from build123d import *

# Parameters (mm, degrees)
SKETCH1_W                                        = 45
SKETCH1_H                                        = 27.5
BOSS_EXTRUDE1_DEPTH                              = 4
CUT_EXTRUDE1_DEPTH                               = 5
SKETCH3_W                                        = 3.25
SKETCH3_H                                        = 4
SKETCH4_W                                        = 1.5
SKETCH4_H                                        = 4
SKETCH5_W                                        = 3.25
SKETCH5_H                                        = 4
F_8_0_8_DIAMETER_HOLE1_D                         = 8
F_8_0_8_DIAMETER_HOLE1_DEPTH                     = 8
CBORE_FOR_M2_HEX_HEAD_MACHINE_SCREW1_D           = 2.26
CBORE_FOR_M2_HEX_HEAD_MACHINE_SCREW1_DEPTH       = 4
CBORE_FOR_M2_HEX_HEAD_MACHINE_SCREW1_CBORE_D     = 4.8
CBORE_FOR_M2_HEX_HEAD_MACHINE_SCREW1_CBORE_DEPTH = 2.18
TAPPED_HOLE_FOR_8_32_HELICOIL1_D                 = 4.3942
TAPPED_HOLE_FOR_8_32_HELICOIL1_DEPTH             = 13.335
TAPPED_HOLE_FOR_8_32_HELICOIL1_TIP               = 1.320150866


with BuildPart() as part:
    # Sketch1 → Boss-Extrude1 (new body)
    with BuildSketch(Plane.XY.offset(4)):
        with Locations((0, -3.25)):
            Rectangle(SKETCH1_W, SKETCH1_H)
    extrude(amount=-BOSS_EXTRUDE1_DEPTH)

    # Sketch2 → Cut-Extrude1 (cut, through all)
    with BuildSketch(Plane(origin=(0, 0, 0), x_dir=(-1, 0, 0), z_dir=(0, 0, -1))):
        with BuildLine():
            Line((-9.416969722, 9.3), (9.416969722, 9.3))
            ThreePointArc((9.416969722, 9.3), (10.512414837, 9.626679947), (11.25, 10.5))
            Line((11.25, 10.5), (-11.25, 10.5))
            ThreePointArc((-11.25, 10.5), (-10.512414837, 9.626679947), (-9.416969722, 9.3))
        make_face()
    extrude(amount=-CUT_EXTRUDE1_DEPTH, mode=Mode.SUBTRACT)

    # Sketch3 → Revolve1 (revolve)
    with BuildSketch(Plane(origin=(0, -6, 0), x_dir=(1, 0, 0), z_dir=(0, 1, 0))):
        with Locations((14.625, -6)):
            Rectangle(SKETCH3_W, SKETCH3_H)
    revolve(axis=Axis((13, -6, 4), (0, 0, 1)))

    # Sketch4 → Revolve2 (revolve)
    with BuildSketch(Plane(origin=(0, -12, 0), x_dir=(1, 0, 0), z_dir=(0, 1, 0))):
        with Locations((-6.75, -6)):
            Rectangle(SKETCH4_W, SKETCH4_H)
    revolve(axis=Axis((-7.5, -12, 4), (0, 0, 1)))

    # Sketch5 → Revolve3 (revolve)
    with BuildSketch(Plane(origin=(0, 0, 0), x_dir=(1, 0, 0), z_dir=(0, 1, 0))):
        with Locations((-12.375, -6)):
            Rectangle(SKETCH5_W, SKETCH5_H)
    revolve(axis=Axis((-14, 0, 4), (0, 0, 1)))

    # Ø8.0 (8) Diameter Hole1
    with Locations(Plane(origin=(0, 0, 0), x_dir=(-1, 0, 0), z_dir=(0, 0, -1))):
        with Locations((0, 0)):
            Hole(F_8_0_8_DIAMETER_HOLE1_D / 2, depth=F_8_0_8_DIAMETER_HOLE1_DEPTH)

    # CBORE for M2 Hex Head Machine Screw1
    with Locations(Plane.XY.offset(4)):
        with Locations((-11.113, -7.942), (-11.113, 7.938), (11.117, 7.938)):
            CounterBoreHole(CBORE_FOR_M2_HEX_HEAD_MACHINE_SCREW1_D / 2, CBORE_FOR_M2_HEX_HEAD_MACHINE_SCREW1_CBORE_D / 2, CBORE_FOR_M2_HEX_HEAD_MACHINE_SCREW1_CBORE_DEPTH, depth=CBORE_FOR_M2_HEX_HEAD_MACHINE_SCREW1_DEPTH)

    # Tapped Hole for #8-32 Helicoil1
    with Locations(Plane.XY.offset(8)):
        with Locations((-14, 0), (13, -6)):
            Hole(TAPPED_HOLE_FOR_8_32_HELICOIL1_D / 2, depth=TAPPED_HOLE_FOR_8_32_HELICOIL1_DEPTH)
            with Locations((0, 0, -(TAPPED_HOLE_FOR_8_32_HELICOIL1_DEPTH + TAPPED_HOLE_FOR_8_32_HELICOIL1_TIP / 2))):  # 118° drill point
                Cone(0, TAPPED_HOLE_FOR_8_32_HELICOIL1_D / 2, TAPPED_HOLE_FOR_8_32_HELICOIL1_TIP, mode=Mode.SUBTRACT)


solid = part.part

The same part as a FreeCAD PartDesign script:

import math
import FreeCAD as App
import Part
import Sketcher

V = App.Vector

doc = App.newDocument("Part")
body = doc.addObject("PartDesign::Body", "Body")

sketch1 = body.newObject("Sketcher::SketchObject", "Sketch")
sketch1.AttachmentSupport = (doc.getObject("XY_Plane"), [""])
sketch1.MapMode = "FlatFace"
sketch1.AttachmentOffset = App.Placement(V(0, 0, 4), App.Rotation())
sketch1.addGeometry(Part.LineSegment(V(-22, 10, 0), V(-22, -17, 0)), False)
sketch1.addGeometry(Part.LineSegment(V(-22, -17, 0), V(22, -17, 0)), False)
sketch1.addGeometry(Part.LineSegment(V(22, -17, 0), V(22, 10, 0)), False)
sketch1.addGeometry(Part.LineSegment(V(22, 10, 0), V(-22, 10, 0)), False)
sketch1.addConstraint(Sketcher.Constraint("Coincident", 0, 2, 1, 1))
sketch1.addConstraint(Sketcher.Constraint("Coincident", 1, 2, 2, 1))
sketch1.addConstraint(Sketcher.Constraint("Coincident", 2, 2, 3, 1))
sketch1.addConstraint(Sketcher.Constraint("Coincident", 3, 2, 0, 1))
sketch1.addConstraint(Sketcher.Constraint("Vertical", 0))
sketch1.addConstraint(Sketcher.Constraint("Horizontal", 1))
sketch1.addConstraint(Sketcher.Constraint("Vertical", 2))
sketch1.addConstraint(Sketcher.Constraint("Horizontal", 3))
sketch1.addConstraint(Sketcher.Constraint("DistanceX", 1, 1, 1, 2, 45.0))
sketch1.addConstraint(Sketcher.Constraint("DistanceY", 0, 2, 0, 1, 27.5))
sketch1.addConstraint(Sketcher.Constraint("DistanceY", 0, 2, -1, 1, 17.0))
sketch1.addConstraint(Sketcher.Constraint("DistanceX", 0, 2, -1, 1, 22.5))
pad1 = body.newObject("PartDesign::Pad", "Pad")
pad1.Profile = sketch1
pad1.Length = 4
pad1.Reversed = True

sketch2 = body.newObject("Sketcher::SketchObject", "Sketch001")
sketch2.AttachmentSupport = (doc.getObject("XY_Plane"), [""])
sketch2.MapMode = "FlatFace"
sketch2.addGeometry(Part.LineSegment(V(9.4, 9.3, 0), V(-9.4, 9.3, 0)), False)
sketch2.addGeometry(Part.ArcOfCircle(Part.Circle(V(-9.4, 11.3, 0), V(0, 0, 1), 2), math.radians(-156), math.radians(-90)), False)
sketch2.addGeometry(Part.LineSegment(V(-11.2, 10.5, 0), V(11.2, 10.5, 0)), False)
sketch2.addGeometry(Part.ArcOfCircle(Part.Circle(V(9.4, 11.3, 0), V(0, 0, 1), 2), math.radians(-90), math.radians(-24)), False)
sketch2.addConstraint(Sketcher.Constraint("Tangent", 0, 2, 1, 2))
sketch2.addConstraint(Sketcher.Constraint("Coincident", 1, 1, 2, 1))
sketch2.addConstraint(Sketcher.Constraint("Coincident", 2, 2, 3, 2))
sketch2.addConstraint(Sketcher.Constraint("Tangent", 3, 1, 0, 1))
sketch2.addConstraint(Sketcher.Constraint("Horizontal", 0))
sketch2.addConstraint(Sketcher.Constraint("Horizontal", 2))
sketch2.addConstraint(Sketcher.Constraint("Equal", 1, 3))
sketch2.addConstraint(Sketcher.Constraint("Radius", 1, 2.0))
sketch2.addConstraint(Sketcher.Constraint("DistanceX", 2, 1, 2, 2, 22.5))
sketch2.addConstraint(Sketcher.Constraint("DistanceY", -1, 1, 1, 3, 11.3))
sketch2.addConstraint(Sketcher.Constraint("DistanceY", -1, 1, 1, 1, 10.5))
sketch2.addConstraint(Sketcher.Constraint("DistanceX", 1, 1, -1, 1, 11.25))
pocket1 = body.newObject("PartDesign::Pocket", "Pocket")
pocket1.Profile = sketch2
pocket1.Type = "ThroughAll"
pocket1.Reversed = True

sketch3 = body.newObject("Sketcher::SketchObject", "Sketch002")
sketch3.AttachmentSupport = (doc.getObject("XZ_Plane"), [""])
sketch3.MapMode = "FlatFace"
sketch3.AttachmentOffset = App.Placement(V(0, 0, 6), App.Rotation())
sketch3.addGeometry(Part.LineSegment(V(13, 4, 0), V(13, 8, 0)), False)
sketch3.addGeometry(Part.LineSegment(V(13, 8, 0), V(16.2, 8, 0)), False)
sketch3.addGeometry(Part.LineSegment(V(16.2, 8, 0), V(16.2, 4, 0)), False)
sketch3.addGeometry(Part.LineSegment(V(16.2, 4, 0), V(13, 4, 0)), False)
sketch3.addGeometry(Part.LineSegment(V(13, 4, 0), V(13, 8, 0)), True)
sketch3.addConstraint(Sketcher.Constraint("Coincident", 0, 2, 1, 1))
sketch3.addConstraint(Sketcher.Constraint("Coincident", 1, 2, 2, 1))
sketch3.addConstraint(Sketcher.Constraint("Coincident", 2, 2, 3, 1))
sketch3.addConstraint(Sketcher.Constraint("Coincident", 3, 2, 0, 1))
sketch3.addConstraint(Sketcher.Constraint("Vertical", 0))
sketch3.addConstraint(Sketcher.Constraint("Horizontal", 1))
sketch3.addConstraint(Sketcher.Constraint("Vertical", 2))
sketch3.addConstraint(Sketcher.Constraint("Horizontal", 3))
sketch3.addConstraint(Sketcher.Constraint("Vertical", 4))
sketch3.addConstraint(Sketcher.Constraint("Coincident", 4, 1, 3, 2))
sketch3.addConstraint(Sketcher.Constraint("Horizontal", 1, 2, 4, 2))
sketch3.addConstraint(Sketcher.Constraint("DistanceY", 0, 1, 0, 2, 4.0))
sketch3.addConstraint(Sketcher.Constraint("DistanceX", -1, 1, 0, 2, 13.0))
sketch3.addConstraint(Sketcher.Constraint("DistanceY", -1, 1, 0, 2, 8.0))
sketch3.addConstraint(Sketcher.Constraint("DistanceX", 1, 1, 1, 2, 3.25))
revolution = body.newObject("PartDesign::Revolution", "Revolution")
revolution.Profile = sketch3
revolution.ReferenceAxis = (sketch3, ["Axis0"])
revolution.Angle = 360

sketch4 = body.newObject("Sketcher::SketchObject", "Sketch003")
sketch4.AttachmentSupport = (doc.getObject("XZ_Plane"), [""])
sketch4.MapMode = "FlatFace"
sketch4.AttachmentOffset = App.Placement(V(0, 0, 12), App.Rotation())
sketch4.addGeometry(Part.LineSegment(V(-7.5, 4, 0), V(-7.5, 8, 0)), False)
sketch4.addGeometry(Part.LineSegment(V(-7.5, 8, 0), V(-6, 8, 0)), False)
sketch4.addGeometry(Part.LineSegment(V(-6, 8, 0), V(-6, 4, 0)), False)
sketch4.addGeometry(Part.LineSegment(V(-6, 4, 0), V(-7.5, 4, 0)), False)
sketch4.addGeometry(Part.LineSegment(V(-7.5, 4, 0), V(-7.5, 8, 0)), True)
sketch4.addConstraint(Sketcher.Constraint("Coincident", 0, 2, 1, 1))
sketch4.addConstraint(Sketcher.Constraint("Coincident", 1, 2, 2, 1))
sketch4.addConstraint(Sketcher.Constraint("Coincident", 2, 2, 3, 1))
sketch4.addConstraint(Sketcher.Constraint("Coincident", 3, 2, 0, 1))
sketch4.addConstraint(Sketcher.Constraint("Vertical", 0))
sketch4.addConstraint(Sketcher.Constraint("Horizontal", 1))
sketch4.addConstraint(Sketcher.Constraint("Vertical", 2))
sketch4.addConstraint(Sketcher.Constraint("Horizontal", 3))
sketch4.addConstraint(Sketcher.Constraint("Vertical", 4))
sketch4.addConstraint(Sketcher.Constraint("Coincident", 4, 1, 3, 2))
sketch4.addConstraint(Sketcher.Constraint("Horizontal", 1, 2, 4, 2))
sketch4.addConstraint(Sketcher.Constraint("DistanceY", 0, 1, 0, 2, 4.0))
sketch4.addConstraint(Sketcher.Constraint("DistanceX", 1, 1, 1, 2, 1.5))
sketch4.addConstraint(Sketcher.Constraint("DistanceY", -1, 1, 0, 2, 8.0))
sketch4.addConstraint(Sketcher.Constraint("DistanceX", 1, 2, -1, 1, 6.0))
revolution2 = body.newObject("PartDesign::Revolution", "Revolution001")
revolution2.Profile = sketch4
revolution2.ReferenceAxis = (sketch4, ["Axis0"])
revolution2.Angle = 360

sketch5 = body.newObject("Sketcher::SketchObject", "Sketch004")
sketch5.AttachmentSupport = (doc.getObject("XZ_Plane"), [""])
sketch5.MapMode = "FlatFace"
sketch5.addGeometry(Part.LineSegment(V(-14, 4, 0), V(-14, 8, 0)), False)
sketch5.addGeometry(Part.LineSegment(V(-14, 8, 0), V(-10.8, 8, 0)), False)
sketch5.addGeometry(Part.LineSegment(V(-10.8, 8, 0), V(-10.8, 4, 0)), False)
sketch5.addGeometry(Part.LineSegment(V(-10.8, 4, 0), V(-14, 4, 0)), False)
sketch5.addGeometry(Part.LineSegment(V(-14, 4, 0), V(-14, 8, 0)), True)
sketch5.addConstraint(Sketcher.Constraint("Coincident", 0, 2, 1, 1))
sketch5.addConstraint(Sketcher.Constraint("Coincident", 1, 2, 2, 1))
sketch5.addConstraint(Sketcher.Constraint("Coincident", 2, 2, 3, 1))
sketch5.addConstraint(Sketcher.Constraint("Coincident", 3, 2, 0, 1))
sketch5.addConstraint(Sketcher.Constraint("Vertical", 0))
sketch5.addConstraint(Sketcher.Constraint("Horizontal", 1))
sketch5.addConstraint(Sketcher.Constraint("Vertical", 2))
sketch5.addConstraint(Sketcher.Constraint("Horizontal", 3))
sketch5.addConstraint(Sketcher.Constraint("Vertical", 4))
sketch5.addConstraint(Sketcher.Constraint("Coincident", 4, 1, 3, 2))
sketch5.addConstraint(Sketcher.Constraint("Horizontal", 1, 2, 4, 2))
sketch5.addConstraint(Sketcher.Constraint("DistanceY", 0, 1, 0, 2, 4.0))
sketch5.addConstraint(Sketcher.Constraint("DistanceX", 0, 2, -1, 1, 14.0))
sketch5.addConstraint(Sketcher.Constraint("DistanceY", -1, 1, 0, 2, 8.0))
sketch5.addConstraint(Sketcher.Constraint("DistanceX", 1, 1, 1, 2, 3.25))
revolution3 = body.newObject("PartDesign::Revolution", "Revolution002")
revolution3.Profile = sketch5
revolution3.ReferenceAxis = (sketch5, ["Axis0"])
revolution3.Angle = 360

sketch6 = body.newObject("Sketcher::SketchObject", "Sketch005")
sketch6.AttachmentSupport = (doc.getObject("XY_Plane"), [""])
sketch6.MapMode = "FlatFace"
sketch6.addGeometry(Part.Circle(V(0, 0, 0), V(0, 0, 1), 4), False)
sketch6.addConstraint(Sketcher.Constraint("Coincident", 0, 3, -1, 1))
sketch6.addConstraint(Sketcher.Constraint("Diameter", 0, 8.0))
doc.recompute()
hole = body.newObject("PartDesign::Hole", "Hole")
hole.Profile = sketch6
hole.ThreadType = "None"
hole.Diameter = 8
hole.DepthType = "Dimension"
hole.Depth = 8
hole.DrillPoint = "Flat"
hole.Reversed = True

sketch7 = body.newObject("Sketcher::SketchObject", "Sketch006")
sketch7.AttachmentSupport = (doc.getObject("XY_Plane"), [""])
sketch7.MapMode = "FlatFace"
sketch7.AttachmentOffset = App.Placement(V(0, 0, 4), App.Rotation())
sketch7.addGeometry(Part.Circle(V(-11.1, -7.9, 0), V(0, 0, 1), 1.1), False)
sketch7.addGeometry(Part.Circle(V(-11.1, 7.9, 0), V(0, 0, 1), 1.1), False)
sketch7.addGeometry(Part.Circle(V(11.1, 7.9, 0), V(0, 0, 1), 1.1), False)
sketch7.addConstraint(Sketcher.Constraint("Equal", 0, 1))
sketch7.addConstraint(Sketcher.Constraint("Equal", 1, 2))
sketch7.addConstraint(Sketcher.Constraint("Horizontal", 1, 3, 2, 3))
sketch7.addConstraint(Sketcher.Constraint("Vertical", 0, 3, 1, 3))
sketch7.addConstraint(Sketcher.Constraint("Diameter", 0, 2.26))
sketch7.addConstraint(Sketcher.Constraint("DistanceY", 0, 3, 1, 3, 15.88))
sketch7.addConstraint(Sketcher.Constraint("DistanceX", 1, 3, 2, 3, 22.23))
sketch7.addConstraint(Sketcher.Constraint("DistanceX", 0, 3, -1, 1, 11.113))
sketch7.addConstraint(Sketcher.Constraint("DistanceY", 0, 3, -1, 1, 7.942))
doc.recompute()
hole2 = body.newObject("PartDesign::Hole", "Hole001")
hole2.Profile = sketch7
hole2.ThreadType = "None"
hole2.Diameter = 2.26
hole2.DepthType = "Dimension"
hole2.Depth = 4
hole2.DrillPoint = "Flat"
hole2.HoleCutType = "Counterbore"
hole2.HoleCutDiameter = 4.8
hole2.HoleCutDepth = 2.18

sketch8 = body.newObject("Sketcher::SketchObject", "Sketch007")
sketch8.AttachmentSupport = (doc.getObject("XY_Plane"), [""])
sketch8.MapMode = "FlatFace"
sketch8.AttachmentOffset = App.Placement(V(0, 0, 8), App.Rotation())
sketch8.addGeometry(Part.Circle(V(-14, 0, 0), V(0, 0, 1), 2.2), False)
sketch8.addGeometry(Part.Circle(V(13, -6, 0), V(0, 0, 1), 2.2), False)
sketch8.addConstraint(Sketcher.Constraint("Equal", 0, 1))
sketch8.addConstraint(Sketcher.Constraint("PointOnObject", 0, 3, -1))
sketch8.addConstraint(Sketcher.Constraint("DistanceX", 0, 3, -1, 1, 14.0))
sketch8.addConstraint(Sketcher.Constraint("DistanceX", -1, 1, 1, 3, 13.0))
sketch8.addConstraint(Sketcher.Constraint("DistanceY", 1, 3, -1, 1, 6.0))
sketch8.addConstraint(Sketcher.Constraint("Diameter", 0, 4.3942))
doc.recompute()
hole3 = body.newObject("PartDesign::Hole", "Hole002")
hole3.Profile = sketch8
hole3.ThreadType = "None"
hole3.Diameter = 4.3942
hole3.DepthType = "Dimension"
hole3.Depth = 13.335
hole3.DrillPoint = "Angled"
hole3.DrillPointAngle = 118

doc.recompute()
